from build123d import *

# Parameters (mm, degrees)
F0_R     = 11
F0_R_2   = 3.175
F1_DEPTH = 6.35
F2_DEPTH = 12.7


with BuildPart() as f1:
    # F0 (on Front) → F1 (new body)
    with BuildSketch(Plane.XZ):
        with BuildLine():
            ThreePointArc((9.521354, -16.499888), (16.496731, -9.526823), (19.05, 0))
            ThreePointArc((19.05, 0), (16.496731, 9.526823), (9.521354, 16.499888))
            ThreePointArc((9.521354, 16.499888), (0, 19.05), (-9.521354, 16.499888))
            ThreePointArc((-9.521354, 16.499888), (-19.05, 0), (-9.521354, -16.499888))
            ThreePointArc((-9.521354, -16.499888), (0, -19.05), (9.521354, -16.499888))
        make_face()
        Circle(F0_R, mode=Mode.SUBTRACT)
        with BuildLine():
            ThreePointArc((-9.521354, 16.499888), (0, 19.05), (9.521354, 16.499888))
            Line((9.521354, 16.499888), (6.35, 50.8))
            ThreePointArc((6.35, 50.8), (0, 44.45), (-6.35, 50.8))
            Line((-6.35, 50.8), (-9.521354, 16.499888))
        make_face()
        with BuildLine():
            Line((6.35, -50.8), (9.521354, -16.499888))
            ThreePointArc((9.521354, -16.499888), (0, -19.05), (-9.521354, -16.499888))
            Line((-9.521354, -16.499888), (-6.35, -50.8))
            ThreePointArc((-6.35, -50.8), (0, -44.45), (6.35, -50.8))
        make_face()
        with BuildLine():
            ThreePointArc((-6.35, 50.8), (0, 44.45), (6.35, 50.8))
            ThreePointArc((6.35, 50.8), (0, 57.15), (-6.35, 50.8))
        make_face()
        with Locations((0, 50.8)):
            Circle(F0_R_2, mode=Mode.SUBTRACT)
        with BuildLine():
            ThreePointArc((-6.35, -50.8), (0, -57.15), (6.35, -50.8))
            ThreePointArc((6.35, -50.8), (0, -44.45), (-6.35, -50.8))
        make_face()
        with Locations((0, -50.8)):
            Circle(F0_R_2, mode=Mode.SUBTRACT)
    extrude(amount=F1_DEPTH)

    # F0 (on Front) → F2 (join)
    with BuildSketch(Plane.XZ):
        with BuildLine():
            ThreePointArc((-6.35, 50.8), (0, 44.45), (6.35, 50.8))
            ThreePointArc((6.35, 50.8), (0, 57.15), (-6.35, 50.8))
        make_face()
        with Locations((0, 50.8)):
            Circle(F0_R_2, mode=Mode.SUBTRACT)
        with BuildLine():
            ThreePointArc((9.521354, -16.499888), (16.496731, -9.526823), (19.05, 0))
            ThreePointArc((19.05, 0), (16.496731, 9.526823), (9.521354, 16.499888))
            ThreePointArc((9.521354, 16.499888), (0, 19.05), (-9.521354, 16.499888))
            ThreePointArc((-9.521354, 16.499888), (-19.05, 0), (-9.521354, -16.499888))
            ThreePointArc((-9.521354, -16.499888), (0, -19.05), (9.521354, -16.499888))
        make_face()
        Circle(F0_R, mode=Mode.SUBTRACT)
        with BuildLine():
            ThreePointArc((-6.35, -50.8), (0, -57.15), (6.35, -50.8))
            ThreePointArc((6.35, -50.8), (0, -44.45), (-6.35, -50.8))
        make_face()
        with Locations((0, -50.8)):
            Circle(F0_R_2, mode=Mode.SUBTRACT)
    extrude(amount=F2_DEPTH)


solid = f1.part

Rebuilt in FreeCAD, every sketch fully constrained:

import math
import FreeCAD as App
import Part
import Sketcher

V = App.Vector
Q = App.Units.Quantity

doc = App.newDocument("Part")
params = doc.addObject("Spreadsheet::Sheet", "Params")
for row, (alias, value) in enumerate([
    ("sketch1_diameter", "0.25 in"),
    ("sketch1_radius", "0.75 in"),
    ("sketch1_radius2", "0.25 in"),
    ("pad1_length", "0.25 in"),
    ("sketch2_diameter", "0.5 in"),
    ("sketch2_diameter2", "0.25 in"),
    ("sketch2_radius", "0.75 in"),
    ("pad2_length", "0.5 in"),
], start=1):
    params.set(f"A{row}", alias)
    params.set(f"B{row}", "=" + value)
    params.setAlias(f"B{row}", alias)

body = doc.addObject("PartDesign::Body", "Body")

sketch1 = body.newObject("Sketcher::SketchObject", "Sketch")
sketch1.AttachmentSupport = (doc.getObject("XZ_Plane"), [""])
sketch1.MapMode = "FlatFace"
sketch1.addGeometry([
    Part.ArcOfCircle(Part.Circle(V(0, 0, 0), V(0, 0, 1), 19.1), math.radians(-60), math.radians(0)),
    Part.ArcOfCircle(Part.Circle(V(0, 0, 0), V(0, 0, 1), 19.1), math.radians(0), math.radians(60)),
    Part.LineSegment(V(9.5, 16.5, 0), V(6.3, 50.8, 0)),
    Part.ArcOfCircle(Part.Circle(V(0, 50.8, 0), V(0, 0, 1), 6.3), math.radians(0), math.radians(180)),
    Part.LineSegment(V(-6.3, 50.8, 0), V(-9.5, 16.5, 0)),
    Part.ArcOfCircle(Part.Circle(V(0, 0, 0), V(0, 0, 1), 19), math.radians(120), math.radians(240)),
    Part.LineSegment(V(-9.5, -16.5, 0), V(-6.3, -50.8, 0)),
    Part.ArcOfCircle(Part.Circle(V(0, -50.8, 0), V(0, 0, 1), 6.3), math.radians(180), math.radians(360)),
    Part.LineSegment(V(6.3, -50.8, 0), V(9.5, -16.5, 0)),
    Part.Circle(V(0, -50.8, 0), V(0, 0, 1), 3.2),
    Part.Circle(V(0, 0, 0), V(0, 0, 1), 11),
    Part.Circle(V(0, 50.8, 0), V(0, 0, 1), 3.2),
], False)
sketch1.addConstraint([
    Sketcher.Constraint("Tangent", 0, 2, 1, 1),
    Sketcher.Constraint("Coincident", 1, 2, 2, 1),
    Sketcher.Constraint("Coincident", 2, 2, 3, 1),
    Sketcher.Constraint("Coincident", 3, 2, 4, 1),
    Sketcher.Constraint("Coincident", 4, 2, 5, 1),
    Sketcher.Constraint("Coincident", 5, 2, 6, 1),
    Sketcher.Constraint("Coincident", 6, 2, 7, 1),
    Sketcher.Constraint("Coincident", 7, 2, 8, 1),
    Sketcher.Constraint("Coincident", 8, 2, 0, 1),
    Sketcher.Constraint("Coincident", 0, 3, -1, 1),
    Sketcher.Constraint("Coincident", 5, 3, -1, 1),
    Sketcher.Constraint("Coincident", 10, 3, -1, 1),
    Sketcher.Constraint("Coincident", 9, 3, 7, 3),
    Sketcher.Constraint("Coincident", 11, 3, 3, 3),
    Sketcher.Constraint("Equal", 0, 1),
    Sketcher.Constraint("Equal", 1, 5),
    Sketcher.Constraint("Equal", 3, 7),
    Sketcher.Constraint("Equal", 9, 11),
    Sketcher.Constraint("Symmetric", 3, 3, 7, 3, -1, 1),
    Sketcher.Constraint("Symmetric", 2, 2, 3, 2, -2),
    Sketcher.Constraint("PointOnObject", 0, 2, -1),
    Sketcher.Constraint("Parallel", 2, 6),
    Sketcher.Constraint("Parallel", 4, 8),
    Sketcher.Constraint("Horizontal", 11, 3, 2, 2),
    Sketcher.Constraint("Horizontal", 1, 2, 4, 2),
    Sketcher.Constraint("Horizontal", 9, 3, 6, 2),
    Sketcher.Constraint("Horizontal", 6, 2, 7, 2),
    Sketcher.Constraint("Diameter", 9, Q("0.25 in")),
    Sketcher.Constraint("Radius", 0, Q("0.75 in")),
    Sketcher.Constraint("Radius", 3, Q("0.25 in")),
    Sketcher.Constraint("DistanceY", -1, 1, 3, 3, Q("2 in")),
    Sketcher.Constraint("Diameter", 10, 22.0),
    Sketcher.Constraint("Distance", 2, 34.44641),
])
sketch1.setExpression("Constraints[27]", "Params.sketch1_diameter")
sketch1.setExpression("Constraints[28]", "Params.sketch1_radius")
sketch1.setExpression("Constraints[29]", "Params.sketch1_radius2")
pad1 = body.newObject("PartDesign::Pad", "Pad")
pad1.Profile = sketch1
pad1.setExpression("Length", "Params.pad1_length")

sketch2 = body.newObject("Sketcher::SketchObject", "Sketch001")
sketch2.AttachmentSupport = (doc.getObject("XZ_Plane"), [""])
sketch2.MapMode = "FlatFace"
sketch2.addGeometry([
    Part.Circle(V(0, 50.8, 0), V(0, 0, 1), 6.3),
    Part.Circle(V(0, 50.8, 0), V(0, 0, 1), 3.2),
    Part.ArcOfCircle(Part.Circle(V(0, 0, 0), V(0, 0, 1), 19.1), math.radians(-60), math.radians(0)),
    Part.ArcOfCircle(Part.Circle(V(0, 0, 0), V(0, 0, 1), 19.1), math.radians(0), math.radians(60)),
    Part.ArcOfCircle(Part.Circle(V(0, 0, 0), V(0, 0, 1), 19), math.radians(60), math.radians(120)),
    Part.ArcOfCircle(Part.Circle(V(0, 0, 0), V(0, 0, 1), 19), math.radians(120), math.radians(240)),
    Part.ArcOfCircle(Part.Circle(V(0, 0, 0), V(0, 0, 1), 19), math.radians(-120), math.radians(-60)),
    Part.Circle(V(0, 0, 0), V(0, 0, 1), 11),
    Part.Circle(V(0, -50.8, 0), V(0, 0, 1), 6.3),
    Part.Circle(V(0, -50.8, 0), V(0, 0, 1), 3.2),
], False)
sketch2.addConstraint([
    Sketcher.Constraint("Tangent", 2, 2, 3, 1),
    Sketcher.Constraint("Tangent", 3, 2, 4, 1),
    Sketcher.Constraint("Tangent", 4, 2, 5, 1),
    Sketcher.Constraint("Tangent", 5, 2, 6, 1),
    Sketcher.Constraint("Tangent", 6, 2, 2, 1),
    Sketcher.Constraint("Coincident", 2, 3, -1, 1),
    Sketcher.Constraint("Coincident", 4, 3, -1, 1),
    Sketcher.Constraint("Coincident", 7, 3, -1, 1),
    Sketcher.Constraint("Coincident", 1, 3, 0, 3),
    Sketcher.Constraint("Coincident", 9, 3, 8, 3),
    Sketcher.Constraint("Equal", 0, 8),
    Sketcher.Constraint("Equal", 1, 9),
    Sketcher.Constraint("Symmetric", 0, 3, 8, 3, -1, 1),
    Sketcher.Constraint("PointOnObject", 0, 3, -2),
    Sketcher.Constraint("PointOnObject", 2, 2, -1),
    Sketcher.Constraint("Horizontal", 3, 2, 4, 2),
    Sketcher.Constraint("Horizontal", 5, 2, 6, 2),
    Sketcher.Constraint("Vertical", 4, 2, 5, 2),
    Sketcher.Constraint("Diameter", 0, Q("0.5 in")),
    Sketcher.Constraint("Diameter", 1, Q("0.25 in")),
    Sketcher.Constraint("Radius", 2, Q("0.75 in")),
    Sketcher.Constraint("DistanceY", -1, 1, 0, 3, Q("2 in")),
    Sketcher.Constraint("Diameter", 7, 22.0),
    Sketcher.Constraint("DistanceY", -1, 1, 3, 2, 16.499888),
])
sketch2.setExpression("Constraints[18]", "Params.sketch2_diameter")
sketch2.setExpression("Constraints[19]", "Params.sketch2_diameter2")
sketch2.setExpression("Constraints[20]", "Params.sketch2_radius")
pad2 = body.newObject("PartDesign::Pad", "Pad001")
pad2.Profile = sketch2
pad2.setExpression("Length", "Params.pad2_length")

doc.recompute()
